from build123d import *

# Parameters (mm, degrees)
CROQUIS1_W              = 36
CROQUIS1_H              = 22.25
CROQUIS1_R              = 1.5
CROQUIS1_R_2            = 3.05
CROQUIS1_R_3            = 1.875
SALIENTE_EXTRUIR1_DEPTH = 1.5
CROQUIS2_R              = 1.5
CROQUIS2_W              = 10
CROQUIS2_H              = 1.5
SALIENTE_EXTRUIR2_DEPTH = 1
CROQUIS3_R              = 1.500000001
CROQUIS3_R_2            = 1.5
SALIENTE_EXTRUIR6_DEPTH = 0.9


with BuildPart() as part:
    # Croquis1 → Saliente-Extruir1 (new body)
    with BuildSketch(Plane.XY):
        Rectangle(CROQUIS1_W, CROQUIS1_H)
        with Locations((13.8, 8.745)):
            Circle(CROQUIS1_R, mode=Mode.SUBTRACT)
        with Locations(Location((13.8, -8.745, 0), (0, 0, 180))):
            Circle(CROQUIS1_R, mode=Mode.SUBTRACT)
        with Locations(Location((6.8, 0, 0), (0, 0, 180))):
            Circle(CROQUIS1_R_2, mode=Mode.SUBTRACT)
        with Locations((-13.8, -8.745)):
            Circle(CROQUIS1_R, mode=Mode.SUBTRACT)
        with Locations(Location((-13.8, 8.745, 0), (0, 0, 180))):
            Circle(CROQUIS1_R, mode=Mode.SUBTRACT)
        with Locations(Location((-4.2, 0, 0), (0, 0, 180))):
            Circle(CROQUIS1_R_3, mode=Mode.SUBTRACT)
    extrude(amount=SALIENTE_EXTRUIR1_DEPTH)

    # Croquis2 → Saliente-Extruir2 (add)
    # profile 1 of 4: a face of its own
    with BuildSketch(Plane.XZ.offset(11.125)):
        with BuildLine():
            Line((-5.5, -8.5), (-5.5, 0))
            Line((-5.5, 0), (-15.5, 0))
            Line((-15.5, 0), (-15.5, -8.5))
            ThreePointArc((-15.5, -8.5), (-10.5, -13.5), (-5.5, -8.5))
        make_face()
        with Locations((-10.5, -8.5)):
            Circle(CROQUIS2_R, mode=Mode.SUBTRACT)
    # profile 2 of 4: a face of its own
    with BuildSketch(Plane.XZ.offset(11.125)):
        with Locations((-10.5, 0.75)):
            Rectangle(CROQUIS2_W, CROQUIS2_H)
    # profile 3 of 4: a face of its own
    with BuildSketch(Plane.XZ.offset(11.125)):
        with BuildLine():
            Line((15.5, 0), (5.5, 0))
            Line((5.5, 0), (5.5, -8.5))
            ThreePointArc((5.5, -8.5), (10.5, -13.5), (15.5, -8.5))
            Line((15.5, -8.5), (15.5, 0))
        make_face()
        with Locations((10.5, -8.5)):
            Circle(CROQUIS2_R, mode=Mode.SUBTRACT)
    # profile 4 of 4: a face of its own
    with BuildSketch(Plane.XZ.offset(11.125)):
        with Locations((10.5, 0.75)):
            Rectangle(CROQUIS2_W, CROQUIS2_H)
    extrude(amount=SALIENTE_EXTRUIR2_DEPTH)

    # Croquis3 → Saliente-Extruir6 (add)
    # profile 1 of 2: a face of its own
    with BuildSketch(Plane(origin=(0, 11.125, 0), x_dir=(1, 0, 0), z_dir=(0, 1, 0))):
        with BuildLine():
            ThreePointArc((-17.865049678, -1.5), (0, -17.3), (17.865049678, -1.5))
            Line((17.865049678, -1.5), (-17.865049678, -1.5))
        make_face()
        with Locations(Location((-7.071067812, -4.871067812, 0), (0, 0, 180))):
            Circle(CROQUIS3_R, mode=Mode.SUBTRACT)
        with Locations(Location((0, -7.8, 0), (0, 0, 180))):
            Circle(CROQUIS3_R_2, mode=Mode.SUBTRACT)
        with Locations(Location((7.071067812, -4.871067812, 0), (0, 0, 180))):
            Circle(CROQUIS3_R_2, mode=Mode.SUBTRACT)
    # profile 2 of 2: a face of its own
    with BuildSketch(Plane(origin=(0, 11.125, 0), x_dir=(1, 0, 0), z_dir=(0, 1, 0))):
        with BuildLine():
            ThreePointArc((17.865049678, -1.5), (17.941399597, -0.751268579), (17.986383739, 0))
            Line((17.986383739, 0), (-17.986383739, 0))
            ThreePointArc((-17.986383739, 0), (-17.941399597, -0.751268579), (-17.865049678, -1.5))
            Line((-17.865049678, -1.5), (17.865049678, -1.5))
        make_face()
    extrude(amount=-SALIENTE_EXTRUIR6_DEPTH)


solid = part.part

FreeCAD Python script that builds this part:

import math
import FreeCAD as App
import Part
import Sketcher

V = App.Vector
Q = App.Units.Quantity

doc = App.newDocument("Part")
body = doc.addObject("PartDesign::Body", "Body")

sketch1 = body.newObject("Sketcher::SketchObject", "Sketch")
sketch1.AttachmentSupport = (doc.getObject("XY_Plane"), [""])
sketch1.MapMode = "FlatFace"
sketch1.addGeometry(Part.LineSegment(V(-18, 11.1, 0), V(-18, -11.1, 0)), False)
sketch1.addGeometry(Part.LineSegment(V(-18, -11.1, 0), V(18, -11.1, 0)), False)
sketch1.addGeometry(Part.LineSegment(V(18, -11.1, 0), V(18, 11.1, 0)), False)
sketch1.addGeometry(Part.LineSegment(V(18, 11.1, 0), V(-18, 11.1, 0)), False)
sketch1.addGeometry(Part.Circle(V(-13.8, -8.7, 0), V(0, 0, 1), 1.5), False)
sketch1.addGeometry(Part.Circle(V(13.8, -8.7, 0), V(0, 0, 1), 1.5), False)
sketch1.addGeometry(Part.Circle(V(-4.2, 0, 0), V(0, 0, 1), 1.9), False)
sketch1.addGeometry(Part.Circle(V(-13.8, 8.7, 0), V(0, 0, 1), 1.5), False)
sketch1.addGeometry(Part.Circle(V(6.8, 0, 0), V(0, 0, 1), 3), False)
sketch1.addGeometry(Part.Circle(V(13.8, 8.7, 0), V(0, 0, 1), 1.5), False)
sketch1.addConstraint(Sketcher.Constraint("Coincident", 0, 2, 1, 1))
sketch1.addConstraint(Sketcher.Constraint("Coincident", 1, 2, 2, 1))
sketch1.addConstraint(Sketcher.Constraint("Coincident", 2, 2, 3, 1))
sketch1.addConstraint(Sketcher.Constraint("Coincident", 3, 2, 0, 1))
sketch1.addConstraint(Sketcher.Constraint("Vertical", 0))
sketch1.addConstraint(Sketcher.Constraint("Horizontal", 1))
sketch1.addConstraint(Sketcher.Constraint("Vertical", 2))
sketch1.addConstraint(Sketcher.Constraint("Horizontal", 3))
sketch1.addConstraint(Sketcher.Constraint("Equal", 4, 5))
sketch1.addConstraint(Sketcher.Constraint("Equal", 5, 7))
sketch1.addConstraint(Sketcher.Constraint("Equal", 7, 9))
sketch1.addConstraint(Sketcher.Constraint("Symmetric", 5, 3, 7, 3, -1, 1))
sketch1.addConstraint(Sketcher.Constraint("Symmetric", 4, 3, 9, 3, -1, 1))
sketch1.addConstraint(Sketcher.Constraint("Symmetric", 0, 2, 2, 2, -1, 1))
sketch1.addConstraint(Sketcher.Constraint("Symmetric", 4, 3, 5, 3, -2))
sketch1.addConstraint(Sketcher.Constraint("PointOnObject", 6, 3, -1))
sketch1.addConstraint(Sketcher.Constraint("PointOnObject", 8, 3, -1))
sketch1.addConstraint(Sketcher.Constraint("Diameter", 4, Q("3 mm")))
sketch1.addConstraint(Sketcher.Constraint("Diameter", 8, Q("6.1 mm")))
sketch1.addConstraint(Sketcher.Constraint("Diameter", 6, Q("3.75 mm")))
sketch1.addConstraint(Sketcher.Constraint("DistanceX", 1, 1, 1, 2, Q("36 mm")))
sketch1.addConstraint(Sketcher.Constraint("DistanceX", 6, 3, 5, 3, Q("18 mm")))
sketch1.addConstraint(Sketcher.Constraint("DistanceX", 6, 3, 8, 3, Q("11 mm")))
sketch1.addConstraint(Sketcher.Constraint("DistanceY", 0, 2, 0, 1, Q("22.25 mm")))
sketch1.addConstraint(Sketcher.Constraint("DistanceX", 4, 3, -1, 1, Q("13.8 mm")))
sketch1.addConstraint(Sketcher.Constraint("DistanceY", 4, 3, 7, 3, Q("17.49 mm")))
pad1 = body.newObject("PartDesign::Pad", "Pad")
pad1.Profile = sketch1
pad1.Length = 1.5

sketch2 = body.newObject("Sketcher::SketchObject", "Sketch001")
sketch2.AttachmentSupport = (doc.getObject("XZ_Plane"), [""])
sketch2.MapMode = "FlatFace"
sketch2.AttachmentOffset = App.Placement(V(0, 0, 11.125), App.Rotation())
sketch2.addGeometry(Part.LineSegment(V(-5.5, -8.5, 0), V(-5.5, 1.5, 0)), False)
sketch2.addGeometry(Part.LineSegment(V(-5.5, 1.5, 0), V(-15.5, 1.5, 0)), False)
sketch2.addGeometry(Part.LineSegment(V(-15.5, 1.5, 0), V(-15.5, -8.5, 0)), False)
sketch2.addGeometry(Part.ArcOfCircle(Part.Circle(V(-10.5, -8.5, 0), V(0, 0, 1), 5), math.radians(180), math.radians(360)), False)
sketch2.addGeometry(Part.Circle(V(-10.5, -8.5, 0), V(0, 0, 1), 1.5), False)
sketch2.addGeometry(Part.LineSegment(V(15.5, -8.5, 0), V(15.5, 1.5, 0)), False)
sketch2.addGeometry(Part.LineSegment(V(15.5, 1.5, 0), V(5.5, 1.5, 0)), False)
sketch2.addGeometry(Part.LineSegment(V(5.5, 1.5, 0), V(5.5, -8.5, 0)), False)
sketch2.addGeometry(Part.ArcOfCircle(Part.Circle(V(10.5, -8.5, 0), V(0, 0, 1), 5), math.radians(180), math.radians(360)), False)
sketch2.addGeometry(Part.Circle(V(10.5, -8.5, 0), V(0, 0, 1), 1.5), False)
sketch2.addConstraint(Sketcher.Constraint("Coincident", 0, 2, 1, 1))
sketch2.addConstraint(Sketcher.Constraint("Coincident", 1, 2, 2, 1))
sketch2.addConstraint(Sketcher.Constraint("Tangent", 2, 2, 3, 1))
sketch2.addConstraint(Sketcher.Constraint("Tangent", 3, 2, 0, 1))
sketch2.addConstraint(Sketcher.Constraint("Coincident", 5, 2, 6, 1))
sketch2.addConstraint(Sketcher.Constraint("Coincident", 6, 2, 7, 1))
sketch2.addConstraint(Sketcher.Constraint("Tangent", 7, 2, 8, 1))
sketch2.addConstraint(Sketcher.Constraint("Tangent", 8, 2, 5, 1))
sketch2.addConstraint(Sketcher.Constraint("Vertical", 0))
sketch2.addConstraint(Sketcher.Constraint("Horizontal", 1))
sketch2.addConstraint(Sketcher.Constraint("Vertical", 2))
sketch2.addConstraint(Sketcher.Constraint("Vertical", 5))
sketch2.addConstraint(Sketcher.Constraint("Horizontal", 6))
sketch2.addConstraint(Sketcher.Constraint("Vertical", 7))
sketch2.addConstraint(Sketcher.Constraint("Coincident", 4, 3, 3, 3))
sketch2.addConstraint(Sketcher.Constraint("Coincident", 9, 3, 8, 3))
sketch2.addConstraint(Sketcher.Constraint("Equal", 3, 8))
sketch2.addConstraint(Sketcher.Constraint("Equal", 4, 9))
sketch2.addConstraint(Sketcher.Constraint("Symmetric", 3, 3, 8, 3, -2))
sketch2.addConstraint(Sketcher.Constraint("Horizontal", 1, 2, 5, 2))
sketch2.addConstraint(Sketcher.Constraint("Equal", 6, 0))
sketch2.addConstraint(Sketcher.Constraint("Diameter", 4, Q("3 mm")))
sketch2.addConstraint(Sketcher.Constraint("Radius", 3, Q("5 mm")))
sketch2.addConstraint(Sketcher.Constraint("DistanceX", 3, 3, 8, 3, Q("21 mm")))
sketch2.addConstraint(Sketcher.Constraint("DistanceY", 3, 3, -1, 1, Q("8.5 mm")))
pad2 = body.newObject("PartDesign::Pad", "Pad001")
pad2.Profile = sketch2
pad2.Length = 1

sketch3 = body.newObject("Sketcher::SketchObject", "Sketch002")
sketch3.AttachmentSupport = (doc.getObject("XZ_Plane"), [""])
sketch3.MapMode = "FlatFace"
sketch3.AttachmentOffset = App.Placement(V(0, 0, -11.125), App.Rotation())
sketch3.addGeometry(Part.ArcOfCircle(Part.Circle(V(0, -0.7, 0), V(0, 0, 1), 18), math.radians(7), math.radians(173)), False)
sketch3.addGeometry(Part.ArcOfCircle(Part.Circle(V(0, -0.7, 0), V(0, 0, 1), 18), math.radians(2.23), math.radians(7.02)), False)
sketch3.addGeometry(Part.LineSegment(V(18, 0, 0), V(-18, 0, 0)), False)
sketch3.addGeometry(Part.ArcOfCircle(Part.Circle(V(0, -0.7, 0), V(0, 0, 1), 18), math.radians(172.98), math.radians(177.77)), False)
sketch3.addGeometry(Part.Circle(V(0, 7.8, 0), V(0, 0, 1), 1.5), False)
sketch3.addGeometry(Part.Circle(V(-7.1, 4.9, 0), V(0, 0, 1), 1.5), False)
sketch3.addGeometry(Part.Circle(V(7.1, 4.9, 0), V(0, 0, 1), 1.5), False)
sketch3.addConstraint(Sketcher.Constraint("Tangent", 0, 1, 1, 2))
sketch3.addConstraint(Sketcher.Constraint("Coincident", 1, 1, 2, 1))
sketch3.addConstraint(Sketcher.Constraint("Coincident", 2, 2, 3, 2))
sketch3.addConstraint(Sketcher.Constraint("Tangent", 3, 1, 0, 2))
sketch3.addConstraint(Sketcher.Constraint("Horizontal", 2))
sketch3.addConstraint(Sketcher.Constraint("Equal", 0, 1))
sketch3.addConstraint(Sketcher.Constraint("Equal", 1, 3))
sketch3.addConstraint(Sketcher.Constraint("Equal", 4, 5))
sketch3.addConstraint(Sketcher.Constraint("Equal", 5, 6))
sketch3.addConstraint(Sketcher.Constraint("Symmetric", 1, 1, 2, 2, -1, 1))
sketch3.addConstraint(Sketcher.Constraint("Symmetric", 5, 3, 6, 3, -2))
sketch3.addConstraint(Sketcher.Constraint("PointOnObject", 4, 3, -2))
sketch3.addConstraint(Sketcher.Constraint("Horizontal", 0, 1, 3, 1))
sketch3.addConstraint(Sketcher.Constraint("Diameter", 4, Q("3 mm")))
sketch3.addConstraint(Sketcher.Constraint("Radius", 0, Q("18 mm")))
sketch3.addConstraint(Sketcher.Constraint("DistanceY", 0, 3, -1, 1, Q("0.7 mm")))
sketch3.addConstraint(Sketcher.Constraint("DistanceY", -1, 1, 4, 3, Q("7.8 mm")))
sketch3.addConstraint(Sketcher.Constraint("DistanceY", -1, 1, 0, 1, Q("1.5 mm")))
sketch3.addConstraint(Sketcher.Constraint("DistanceX", 5, 3, 3, 3, Q("7.071068 mm")))
sketch3.addConstraint(Sketcher.Constraint("DistanceY", -1, 1, 5, 3, Q("4.871068 mm")))
pad3 = body.newObject("PartDesign::Pad", "Pad002")
pad3.Profile = sketch3
pad3.Length = 0.9

doc.recompute()
